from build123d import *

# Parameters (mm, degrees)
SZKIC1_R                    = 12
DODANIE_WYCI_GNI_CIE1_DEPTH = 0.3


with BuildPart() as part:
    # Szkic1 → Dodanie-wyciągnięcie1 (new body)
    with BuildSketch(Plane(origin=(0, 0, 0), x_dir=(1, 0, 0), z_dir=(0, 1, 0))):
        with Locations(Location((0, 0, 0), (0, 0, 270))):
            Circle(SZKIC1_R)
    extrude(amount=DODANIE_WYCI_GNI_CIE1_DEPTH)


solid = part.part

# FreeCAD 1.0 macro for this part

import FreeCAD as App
import Part
import Sketcher

doc = App.newDocument("Part")
body = doc.addObject("PartDesign::Body", "Body")

# Sketch on XZ plane
sketch1 = doc.addObject("Sketcher::SketchObject", "Sketch")
body.addObject(sketch1)
sketch1.AttachmentSupport = (doc.XZ_Plane, [""])
sketch1.MapMode = "FlatFace"
sketch1.addGeometry(Part.Circle(App.Vector(0, 0, 0), App.Vector(0, 0, 1), 12), False)
sketch1.addConstraint([
    Sketcher.Constraint("Coincident", 0, 3, -1, 1),
    Sketcher.Constraint("Diameter", 0, 24.0),
])
pad1 = doc.addObject("PartDesign::Pad", "Pad")
body.addObject(pad1)
pad1.Profile = sketch1
pad1.Length = 0.3
pad1.Reversed = True

doc.recompute()
